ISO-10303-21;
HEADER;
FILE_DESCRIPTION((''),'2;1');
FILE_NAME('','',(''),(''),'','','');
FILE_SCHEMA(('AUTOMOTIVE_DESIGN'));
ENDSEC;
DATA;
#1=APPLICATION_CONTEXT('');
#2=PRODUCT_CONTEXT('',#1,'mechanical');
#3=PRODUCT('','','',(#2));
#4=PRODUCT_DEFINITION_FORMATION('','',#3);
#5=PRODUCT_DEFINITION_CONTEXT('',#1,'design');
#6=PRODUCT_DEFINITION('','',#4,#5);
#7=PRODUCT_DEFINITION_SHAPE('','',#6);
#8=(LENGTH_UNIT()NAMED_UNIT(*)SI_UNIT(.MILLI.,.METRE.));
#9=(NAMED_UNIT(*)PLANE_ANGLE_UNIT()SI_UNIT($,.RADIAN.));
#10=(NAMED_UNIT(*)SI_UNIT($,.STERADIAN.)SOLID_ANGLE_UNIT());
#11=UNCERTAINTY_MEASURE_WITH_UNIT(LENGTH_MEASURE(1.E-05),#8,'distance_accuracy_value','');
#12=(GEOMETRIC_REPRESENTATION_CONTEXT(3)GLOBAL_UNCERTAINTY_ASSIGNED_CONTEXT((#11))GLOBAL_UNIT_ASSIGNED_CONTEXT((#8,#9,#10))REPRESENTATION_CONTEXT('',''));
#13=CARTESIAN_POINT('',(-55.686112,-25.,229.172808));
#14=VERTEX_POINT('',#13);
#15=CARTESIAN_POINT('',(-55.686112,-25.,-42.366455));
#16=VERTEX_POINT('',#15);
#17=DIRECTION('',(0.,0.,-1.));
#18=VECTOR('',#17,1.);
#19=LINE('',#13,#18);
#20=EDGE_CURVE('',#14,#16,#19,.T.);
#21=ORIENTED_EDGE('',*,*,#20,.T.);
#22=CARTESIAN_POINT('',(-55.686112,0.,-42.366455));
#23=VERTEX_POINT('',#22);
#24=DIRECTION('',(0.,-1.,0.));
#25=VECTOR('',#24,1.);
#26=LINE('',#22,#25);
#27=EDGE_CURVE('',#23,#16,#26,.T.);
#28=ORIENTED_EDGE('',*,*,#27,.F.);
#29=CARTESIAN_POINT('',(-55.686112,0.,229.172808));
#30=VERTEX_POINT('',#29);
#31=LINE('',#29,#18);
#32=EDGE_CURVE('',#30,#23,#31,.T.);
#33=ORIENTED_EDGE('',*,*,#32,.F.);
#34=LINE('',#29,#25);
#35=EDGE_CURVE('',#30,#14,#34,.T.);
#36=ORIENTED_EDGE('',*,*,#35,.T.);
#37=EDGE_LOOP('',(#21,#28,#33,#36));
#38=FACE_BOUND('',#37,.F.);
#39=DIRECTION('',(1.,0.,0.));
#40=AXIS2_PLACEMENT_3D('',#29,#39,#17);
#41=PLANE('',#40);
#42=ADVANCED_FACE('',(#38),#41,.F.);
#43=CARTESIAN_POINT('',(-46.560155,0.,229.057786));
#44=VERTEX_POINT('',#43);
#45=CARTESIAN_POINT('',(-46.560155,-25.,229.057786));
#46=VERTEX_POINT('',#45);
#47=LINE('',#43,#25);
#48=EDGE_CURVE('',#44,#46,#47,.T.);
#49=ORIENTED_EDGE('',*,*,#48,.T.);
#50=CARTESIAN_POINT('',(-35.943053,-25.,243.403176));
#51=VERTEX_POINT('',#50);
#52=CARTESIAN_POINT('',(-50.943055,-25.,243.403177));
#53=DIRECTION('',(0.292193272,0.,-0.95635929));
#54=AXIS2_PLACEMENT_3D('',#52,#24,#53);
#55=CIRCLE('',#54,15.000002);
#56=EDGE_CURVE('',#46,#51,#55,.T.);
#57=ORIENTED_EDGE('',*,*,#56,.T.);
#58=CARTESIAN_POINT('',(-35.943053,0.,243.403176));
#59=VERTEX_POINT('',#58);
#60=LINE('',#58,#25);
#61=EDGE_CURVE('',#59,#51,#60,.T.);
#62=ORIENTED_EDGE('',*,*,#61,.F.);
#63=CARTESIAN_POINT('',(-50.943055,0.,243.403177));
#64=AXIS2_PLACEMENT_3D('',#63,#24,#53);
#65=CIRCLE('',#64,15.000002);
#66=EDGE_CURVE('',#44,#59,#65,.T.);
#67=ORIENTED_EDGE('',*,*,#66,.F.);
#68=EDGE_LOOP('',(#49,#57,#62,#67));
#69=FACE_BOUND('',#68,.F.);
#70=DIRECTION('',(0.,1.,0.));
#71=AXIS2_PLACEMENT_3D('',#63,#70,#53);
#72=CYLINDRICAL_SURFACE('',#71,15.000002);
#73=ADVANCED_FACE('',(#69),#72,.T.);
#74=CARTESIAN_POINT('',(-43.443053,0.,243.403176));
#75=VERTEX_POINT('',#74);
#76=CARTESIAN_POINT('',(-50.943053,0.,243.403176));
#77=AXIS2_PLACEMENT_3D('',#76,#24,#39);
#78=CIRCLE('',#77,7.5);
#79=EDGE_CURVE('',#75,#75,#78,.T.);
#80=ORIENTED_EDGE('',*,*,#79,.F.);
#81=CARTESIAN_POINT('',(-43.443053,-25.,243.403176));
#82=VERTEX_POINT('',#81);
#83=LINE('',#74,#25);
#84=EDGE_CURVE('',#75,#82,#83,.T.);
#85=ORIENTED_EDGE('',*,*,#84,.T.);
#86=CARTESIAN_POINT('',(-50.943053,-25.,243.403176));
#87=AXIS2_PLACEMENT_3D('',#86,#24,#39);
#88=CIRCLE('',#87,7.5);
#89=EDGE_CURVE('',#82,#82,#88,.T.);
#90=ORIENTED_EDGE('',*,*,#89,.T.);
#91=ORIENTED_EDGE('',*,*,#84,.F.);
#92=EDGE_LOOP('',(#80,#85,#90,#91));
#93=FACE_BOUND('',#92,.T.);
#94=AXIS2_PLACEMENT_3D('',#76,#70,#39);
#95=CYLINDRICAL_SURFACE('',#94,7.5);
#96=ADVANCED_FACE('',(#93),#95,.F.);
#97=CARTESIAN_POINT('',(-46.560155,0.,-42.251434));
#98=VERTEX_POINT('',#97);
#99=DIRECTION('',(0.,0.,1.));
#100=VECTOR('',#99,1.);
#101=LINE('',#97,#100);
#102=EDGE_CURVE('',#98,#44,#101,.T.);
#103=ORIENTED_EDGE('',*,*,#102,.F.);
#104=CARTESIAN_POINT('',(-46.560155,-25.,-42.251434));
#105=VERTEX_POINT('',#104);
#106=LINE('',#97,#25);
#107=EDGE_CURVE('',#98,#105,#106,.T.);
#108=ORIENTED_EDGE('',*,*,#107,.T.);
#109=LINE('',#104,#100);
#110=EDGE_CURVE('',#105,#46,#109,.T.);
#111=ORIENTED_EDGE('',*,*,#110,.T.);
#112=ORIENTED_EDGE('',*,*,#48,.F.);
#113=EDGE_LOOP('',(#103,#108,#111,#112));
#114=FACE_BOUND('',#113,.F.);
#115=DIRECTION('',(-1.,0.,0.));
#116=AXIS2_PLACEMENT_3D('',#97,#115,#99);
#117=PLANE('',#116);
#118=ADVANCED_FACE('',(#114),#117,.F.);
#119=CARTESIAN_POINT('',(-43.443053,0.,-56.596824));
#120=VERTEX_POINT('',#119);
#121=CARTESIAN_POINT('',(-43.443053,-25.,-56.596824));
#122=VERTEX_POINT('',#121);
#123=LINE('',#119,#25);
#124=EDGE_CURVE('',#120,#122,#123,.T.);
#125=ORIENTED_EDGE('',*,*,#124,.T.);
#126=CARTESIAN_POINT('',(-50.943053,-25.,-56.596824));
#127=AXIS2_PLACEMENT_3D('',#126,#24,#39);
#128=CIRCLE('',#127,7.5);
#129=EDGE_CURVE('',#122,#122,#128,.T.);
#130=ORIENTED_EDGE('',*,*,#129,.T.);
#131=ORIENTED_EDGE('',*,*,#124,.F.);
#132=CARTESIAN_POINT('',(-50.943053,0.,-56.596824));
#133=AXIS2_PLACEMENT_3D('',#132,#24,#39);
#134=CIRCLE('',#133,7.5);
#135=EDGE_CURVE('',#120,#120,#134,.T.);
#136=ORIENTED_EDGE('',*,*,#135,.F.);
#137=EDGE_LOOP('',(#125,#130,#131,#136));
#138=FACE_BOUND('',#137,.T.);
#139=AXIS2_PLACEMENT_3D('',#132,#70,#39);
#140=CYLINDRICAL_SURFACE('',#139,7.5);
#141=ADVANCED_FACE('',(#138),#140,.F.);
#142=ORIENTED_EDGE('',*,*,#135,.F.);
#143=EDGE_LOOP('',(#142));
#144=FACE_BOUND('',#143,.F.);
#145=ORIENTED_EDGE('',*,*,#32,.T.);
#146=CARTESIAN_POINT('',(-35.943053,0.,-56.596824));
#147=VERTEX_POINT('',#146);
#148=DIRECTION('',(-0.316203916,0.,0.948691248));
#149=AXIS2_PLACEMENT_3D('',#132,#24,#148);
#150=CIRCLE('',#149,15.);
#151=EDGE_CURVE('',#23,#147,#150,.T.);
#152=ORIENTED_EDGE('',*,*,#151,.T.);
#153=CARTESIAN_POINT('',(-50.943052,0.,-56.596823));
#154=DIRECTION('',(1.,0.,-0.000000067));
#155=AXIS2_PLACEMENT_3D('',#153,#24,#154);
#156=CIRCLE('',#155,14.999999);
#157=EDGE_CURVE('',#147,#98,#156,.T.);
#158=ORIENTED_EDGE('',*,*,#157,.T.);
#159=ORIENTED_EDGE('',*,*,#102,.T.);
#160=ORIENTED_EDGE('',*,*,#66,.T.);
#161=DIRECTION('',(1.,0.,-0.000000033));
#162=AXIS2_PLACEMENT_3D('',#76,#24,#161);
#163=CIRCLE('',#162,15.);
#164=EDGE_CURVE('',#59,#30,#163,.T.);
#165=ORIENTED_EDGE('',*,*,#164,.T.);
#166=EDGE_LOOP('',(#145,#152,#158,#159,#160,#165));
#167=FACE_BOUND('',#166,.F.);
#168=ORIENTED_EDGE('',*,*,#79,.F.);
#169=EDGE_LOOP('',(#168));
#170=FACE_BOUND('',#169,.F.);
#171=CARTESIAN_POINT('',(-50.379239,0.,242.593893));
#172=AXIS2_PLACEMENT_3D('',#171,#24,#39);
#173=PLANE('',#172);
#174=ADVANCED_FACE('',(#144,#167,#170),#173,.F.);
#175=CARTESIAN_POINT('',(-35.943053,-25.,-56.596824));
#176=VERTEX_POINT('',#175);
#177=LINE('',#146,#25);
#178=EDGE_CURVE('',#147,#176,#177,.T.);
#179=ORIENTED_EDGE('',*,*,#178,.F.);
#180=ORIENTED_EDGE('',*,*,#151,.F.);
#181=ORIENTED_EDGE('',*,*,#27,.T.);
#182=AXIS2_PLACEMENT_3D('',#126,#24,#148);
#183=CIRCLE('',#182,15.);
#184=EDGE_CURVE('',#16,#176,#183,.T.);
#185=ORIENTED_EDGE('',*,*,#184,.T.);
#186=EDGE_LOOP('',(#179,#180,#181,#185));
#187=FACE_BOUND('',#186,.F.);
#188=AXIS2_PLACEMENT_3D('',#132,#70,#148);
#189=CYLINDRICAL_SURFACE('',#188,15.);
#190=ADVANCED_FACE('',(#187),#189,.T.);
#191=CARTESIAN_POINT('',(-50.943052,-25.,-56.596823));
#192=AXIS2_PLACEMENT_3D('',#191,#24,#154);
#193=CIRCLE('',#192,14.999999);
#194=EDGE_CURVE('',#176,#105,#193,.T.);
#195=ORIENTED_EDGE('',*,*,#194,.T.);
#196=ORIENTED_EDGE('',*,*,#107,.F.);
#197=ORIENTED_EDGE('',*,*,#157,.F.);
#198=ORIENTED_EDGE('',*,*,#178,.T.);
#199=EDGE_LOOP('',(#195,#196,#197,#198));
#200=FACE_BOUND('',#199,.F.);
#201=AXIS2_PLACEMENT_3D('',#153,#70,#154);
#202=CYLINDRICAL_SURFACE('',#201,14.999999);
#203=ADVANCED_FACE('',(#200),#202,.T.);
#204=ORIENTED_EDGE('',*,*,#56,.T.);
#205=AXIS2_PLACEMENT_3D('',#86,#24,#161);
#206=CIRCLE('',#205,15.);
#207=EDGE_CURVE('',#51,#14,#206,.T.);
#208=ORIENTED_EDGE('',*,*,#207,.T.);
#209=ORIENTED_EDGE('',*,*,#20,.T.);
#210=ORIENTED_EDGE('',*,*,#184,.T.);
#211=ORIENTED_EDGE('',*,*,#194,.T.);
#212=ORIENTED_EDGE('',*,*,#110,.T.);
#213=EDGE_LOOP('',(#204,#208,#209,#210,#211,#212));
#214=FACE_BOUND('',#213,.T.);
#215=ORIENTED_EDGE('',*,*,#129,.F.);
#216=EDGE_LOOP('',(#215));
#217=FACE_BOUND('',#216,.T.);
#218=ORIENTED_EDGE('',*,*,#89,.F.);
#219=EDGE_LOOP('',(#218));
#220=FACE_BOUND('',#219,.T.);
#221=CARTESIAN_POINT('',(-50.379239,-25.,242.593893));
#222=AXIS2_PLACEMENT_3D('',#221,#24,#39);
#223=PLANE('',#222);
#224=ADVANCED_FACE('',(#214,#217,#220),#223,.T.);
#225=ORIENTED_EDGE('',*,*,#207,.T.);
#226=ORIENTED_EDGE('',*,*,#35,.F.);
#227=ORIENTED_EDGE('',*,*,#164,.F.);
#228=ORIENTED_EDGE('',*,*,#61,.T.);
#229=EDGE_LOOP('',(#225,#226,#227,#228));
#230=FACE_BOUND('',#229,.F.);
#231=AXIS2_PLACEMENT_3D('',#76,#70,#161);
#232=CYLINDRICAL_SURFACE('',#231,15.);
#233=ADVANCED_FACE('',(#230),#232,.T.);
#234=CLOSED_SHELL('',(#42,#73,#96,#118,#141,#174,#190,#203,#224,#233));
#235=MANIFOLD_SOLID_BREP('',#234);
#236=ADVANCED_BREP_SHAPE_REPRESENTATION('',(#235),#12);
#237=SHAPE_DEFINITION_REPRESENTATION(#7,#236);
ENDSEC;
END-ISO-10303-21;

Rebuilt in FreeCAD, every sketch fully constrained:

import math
import FreeCAD as App
import Part
import Sketcher

doc = App.newDocument("Part")
body = doc.addObject("PartDesign::Body", "Body")

# Sketch on XZ plane
sketch1 = body.newObject("Sketcher::SketchObject", "Sketch")
sketch1.AttachmentSupport = (doc.getObject("XZ_Plane"), [""])
sketch1.MapMode = "FlatFace"
sketch1.addGeometry(Part.ArcOfCircle(Part.Circle(App.Vector(-50.943055, 243.403177, 0), App.Vector(0, 0, 1), 15.000002), math.radians(-73.01069), math.radians(-0.000003)), False)
sketch1.addGeometry(Part.ArcOfCircle(Part.Circle(App.Vector(-50.943053, 243.403176, 0), App.Vector(0, 0, 1), 15), math.radians(-0.000002), math.radians(251.56649)), False)
sketch1.addGeometry(Part.LineSegment(App.Vector(-55.686112, 229.172808, 0), App.Vector(-55.686112, -42.366455, 0)), False)
sketch1.addGeometry(Part.ArcOfCircle(Part.Circle(App.Vector(-50.943053, -56.596824, 0), App.Vector(0, 0, 1), 15), math.radians(108.433508), math.radians(360)), False)
sketch1.addGeometry(Part.ArcOfCircle(Part.Circle(App.Vector(-50.943052, -56.596823, 0), App.Vector(0, 0, 1), 14.999999), math.radians(-0.000004), math.radians(73.010697)), False)
sketch1.addGeometry(Part.LineSegment(App.Vector(-46.560155, -42.251434, 0), App.Vector(-46.560155, 229.057786, 0)), False)
sketch1.addGeometry(Part.Circle(App.Vector(-50.943053, -56.596824, 0), App.Vector(0, 0, 1), 7.5), False)
sketch1.addGeometry(Part.Circle(App.Vector(-50.943053, 243.403176, 0), App.Vector(0, 0, 1), 7.5), False)
sketch1.addConstraint(Sketcher.Constraint("Tangent", 0, 2, 1, 1))
sketch1.addConstraint(Sketcher.Constraint("Coincident", 1, 2, 2, 1))
sketch1.addConstraint(Sketcher.Constraint("Coincident", 2, 2, 3, 1))
sketch1.addConstraint(Sketcher.Constraint("Tangent", 3, 2, 4, 1))
sketch1.addConstraint(Sketcher.Constraint("Coincident", 4, 2, 5, 1))
sketch1.addConstraint(Sketcher.Constraint("Coincident", 5, 2, 0, 1))
sketch1.addConstraint(Sketcher.Constraint("Vertical", 2))
sketch1.addConstraint(Sketcher.Constraint("Vertical", 5))
sketch1.addConstraint(Sketcher.Constraint("Coincident", 6, 3, 3, 3))
sketch1.addConstraint(Sketcher.Constraint("Coincident", 7, 3, 0, 3))
sketch1.addConstraint(Sketcher.Constraint("Equal", 0, 1))
sketch1.addConstraint(Sketcher.Constraint("Equal", 1, 3))
sketch1.addConstraint(Sketcher.Constraint("Equal", 3, 4))
sketch1.addConstraint(Sketcher.Constraint("Equal", 6, 7))
sketch1.addConstraint(Sketcher.Constraint("Horizontal", 7, 3, 0, 2))
sketch1.addConstraint(Sketcher.Constraint("Horizontal", 6, 3, 3, 2))
sketch1.addConstraint(Sketcher.Constraint("Vertical", 1, 3, 3, 3))
sketch1.addConstraint(Sketcher.Constraint("Diameter", 6, 15.0))
sketch1.addConstraint(Sketcher.Constraint("Radius", 0, 15.000002))
sketch1.addConstraint(Sketcher.Constraint("DistanceY", 3, 3, 1, 3, 300.0))
sketch1.addConstraint(Sketcher.Constraint("DistanceY", 5, 1, 5, 2, 271.30922))
sketch1.addConstraint(Sketcher.Constraint("DistanceY", 2, 2, 2, 1, 271.539263))
sketch1.addConstraint(Sketcher.Constraint("DistanceX", 1, 2, -1, 1, 55.686112))
sketch1.addConstraint(Sketcher.Constraint("DistanceY", -1, 1, 1, 2, 229.172808))
pad1 = body.newObject("PartDesign::Pad", "Pad")
pad1.Profile = sketch1
pad1.Length = 25

doc.recompute()
